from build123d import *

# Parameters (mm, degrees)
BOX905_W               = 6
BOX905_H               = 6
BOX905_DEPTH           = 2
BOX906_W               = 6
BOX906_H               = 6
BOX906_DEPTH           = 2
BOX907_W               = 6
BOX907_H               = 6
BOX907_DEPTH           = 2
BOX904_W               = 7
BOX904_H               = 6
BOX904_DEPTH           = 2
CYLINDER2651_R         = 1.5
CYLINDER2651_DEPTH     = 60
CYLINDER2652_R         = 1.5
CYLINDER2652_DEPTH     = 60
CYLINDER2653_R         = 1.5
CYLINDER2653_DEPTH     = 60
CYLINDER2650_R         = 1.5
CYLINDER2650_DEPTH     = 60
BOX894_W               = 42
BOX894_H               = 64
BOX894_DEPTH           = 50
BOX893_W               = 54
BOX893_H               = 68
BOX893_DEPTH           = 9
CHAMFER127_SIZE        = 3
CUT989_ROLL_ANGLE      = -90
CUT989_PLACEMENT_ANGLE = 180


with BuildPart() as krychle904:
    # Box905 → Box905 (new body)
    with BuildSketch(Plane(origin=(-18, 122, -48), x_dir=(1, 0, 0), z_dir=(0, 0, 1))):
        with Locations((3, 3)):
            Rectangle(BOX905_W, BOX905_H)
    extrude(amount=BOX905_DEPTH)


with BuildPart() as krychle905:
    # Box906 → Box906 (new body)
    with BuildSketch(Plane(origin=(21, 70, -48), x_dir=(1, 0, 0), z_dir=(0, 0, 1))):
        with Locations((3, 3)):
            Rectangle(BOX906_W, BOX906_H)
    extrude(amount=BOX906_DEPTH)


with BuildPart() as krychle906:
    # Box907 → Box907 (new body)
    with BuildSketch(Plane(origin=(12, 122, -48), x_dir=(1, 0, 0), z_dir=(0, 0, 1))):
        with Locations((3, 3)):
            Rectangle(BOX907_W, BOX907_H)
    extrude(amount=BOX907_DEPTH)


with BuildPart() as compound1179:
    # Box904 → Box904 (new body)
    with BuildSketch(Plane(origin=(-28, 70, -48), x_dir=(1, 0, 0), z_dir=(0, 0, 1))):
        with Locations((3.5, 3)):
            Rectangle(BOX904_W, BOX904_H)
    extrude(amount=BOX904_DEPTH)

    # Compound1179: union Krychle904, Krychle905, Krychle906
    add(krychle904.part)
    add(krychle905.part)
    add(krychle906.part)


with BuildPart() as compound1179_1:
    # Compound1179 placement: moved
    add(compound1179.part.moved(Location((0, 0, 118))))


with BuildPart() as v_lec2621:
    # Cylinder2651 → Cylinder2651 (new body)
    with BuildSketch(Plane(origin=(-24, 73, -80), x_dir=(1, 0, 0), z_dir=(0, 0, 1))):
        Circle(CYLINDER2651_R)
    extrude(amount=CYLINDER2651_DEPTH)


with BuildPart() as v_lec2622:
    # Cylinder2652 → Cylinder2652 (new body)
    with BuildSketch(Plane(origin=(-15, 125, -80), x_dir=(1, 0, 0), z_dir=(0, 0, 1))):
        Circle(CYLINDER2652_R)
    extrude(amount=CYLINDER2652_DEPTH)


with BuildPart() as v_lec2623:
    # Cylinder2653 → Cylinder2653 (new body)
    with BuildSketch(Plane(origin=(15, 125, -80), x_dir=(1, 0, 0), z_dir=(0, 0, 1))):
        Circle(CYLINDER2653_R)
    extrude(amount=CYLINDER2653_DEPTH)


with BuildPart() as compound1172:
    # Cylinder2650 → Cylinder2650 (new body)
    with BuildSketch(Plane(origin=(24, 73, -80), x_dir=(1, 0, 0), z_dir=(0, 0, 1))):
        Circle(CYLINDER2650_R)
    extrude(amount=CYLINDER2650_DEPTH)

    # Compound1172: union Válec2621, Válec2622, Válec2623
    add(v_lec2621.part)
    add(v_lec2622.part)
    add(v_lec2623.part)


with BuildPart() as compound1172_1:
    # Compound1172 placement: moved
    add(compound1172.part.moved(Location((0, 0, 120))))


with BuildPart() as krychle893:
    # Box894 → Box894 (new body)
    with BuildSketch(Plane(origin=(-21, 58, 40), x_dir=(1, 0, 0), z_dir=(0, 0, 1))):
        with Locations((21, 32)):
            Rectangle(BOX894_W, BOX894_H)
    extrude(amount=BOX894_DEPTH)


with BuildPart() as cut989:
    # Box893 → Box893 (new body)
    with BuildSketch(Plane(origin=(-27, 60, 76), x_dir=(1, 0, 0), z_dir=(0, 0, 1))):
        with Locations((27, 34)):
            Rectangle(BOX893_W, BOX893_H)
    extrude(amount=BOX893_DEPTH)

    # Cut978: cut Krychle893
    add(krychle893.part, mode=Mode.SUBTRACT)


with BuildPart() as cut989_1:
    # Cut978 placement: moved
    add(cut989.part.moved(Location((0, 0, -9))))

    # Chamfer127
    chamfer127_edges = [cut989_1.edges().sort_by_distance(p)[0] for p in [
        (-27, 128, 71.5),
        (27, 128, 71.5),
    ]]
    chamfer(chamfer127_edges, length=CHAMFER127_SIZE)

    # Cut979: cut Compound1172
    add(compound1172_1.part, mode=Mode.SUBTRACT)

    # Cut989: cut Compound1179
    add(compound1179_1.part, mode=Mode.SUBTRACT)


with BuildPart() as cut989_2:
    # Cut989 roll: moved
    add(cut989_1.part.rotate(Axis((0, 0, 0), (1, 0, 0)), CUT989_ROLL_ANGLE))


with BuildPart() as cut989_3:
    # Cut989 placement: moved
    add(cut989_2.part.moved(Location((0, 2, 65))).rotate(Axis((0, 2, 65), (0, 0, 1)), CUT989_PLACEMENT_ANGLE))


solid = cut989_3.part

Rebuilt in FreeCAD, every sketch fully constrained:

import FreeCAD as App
import Part
import Sketcher
from FreeCAD import Vector


def edges_at(feature, points):
    """Names of the edges that pass closest to the given points."""
    edges = feature.Shape.Edges
    near = lambda p: min(range(len(edges)), key=lambda i: edges[i].distToShape(Part.Vertex(*p))[0])
    return sorted({f"Edge{near(p) + 1}" for p in points})


def add_polygon(sketch, points):
    """Adds a closed chain of lines whose ends are joined by coincident constraints."""
    first, n = sketch.GeometryCount, len(points)
    for a, b in zip(points, points[1:] + points[:1]):
        sketch.addGeometry(Part.LineSegment(App.Vector(*a, 0), App.Vector(*b, 0)), False)
    for i in range(n):
        sketch.addConstraint(Sketcher.Constraint("Coincident", first + i, 2, first + (i + 1) % n, 1))

doc = App.newDocument("Part")
body = doc.addObject("PartDesign::Body", "Body")

# Sketch on XY plane
sketch1 = body.newObject("Sketcher::SketchObject", "Sketch")
sketch1.AttachmentSupport = (doc.getObject("XY_Plane"), [""])
sketch1.MapMode = "FlatFace"
sketch1.AttachmentOffset = App.Placement(Vector(0, 0, -48), App.Rotation())
add_polygon(sketch1, [(-18, 128), (-18, 122), (-12, 122), (-12, 128)])  # lines 0-3
sketch1.addConstraint([
    Sketcher.Constraint("Vertical", 0),
    Sketcher.Constraint("Horizontal", 1),
    Sketcher.Constraint("Vertical", 2),
    Sketcher.Constraint("Horizontal", 3),
    Sketcher.Constraint("Equal", 3, 0),
    Sketcher.Constraint("DistanceX", 1, 1, 1, 2, 6.0),
    Sketcher.Constraint("DistanceX", 0, 2, -1, 1, 18.0),
    Sketcher.Constraint("DistanceY", -1, 1, 0, 2, 122.0),
])
pad1 = body.newObject("PartDesign::Pad", "Pad")
pad1.Profile = sketch1
pad1.Length = 2
body2 = doc.addObject("PartDesign::Body", "Body001")

# Sketch on XY plane
sketch2 = body2.newObject("Sketcher::SketchObject", "Sketch001")
sketch2.AttachmentSupport = (doc.getObject("XY_Plane001"), [""])
sketch2.MapMode = "FlatFace"
sketch2.AttachmentOffset = App.Placement(Vector(0, 0, -48), App.Rotation())
add_polygon(sketch2, [(21, 76), (21, 70), (27, 70), (27, 76)])  # lines 0-3
sketch2.addConstraint([
    Sketcher.Constraint("Vertical", 0),
    Sketcher.Constraint("Horizontal", 1),
    Sketcher.Constraint("Vertical", 2),
    Sketcher.Constraint("Horizontal", 3),
    Sketcher.Constraint("Equal", 3, 0),
    Sketcher.Constraint("DistanceX", 1, 1, 1, 2, 6.0),
    Sketcher.Constraint("DistanceX", -1, 1, 0, 2, 21.0),
    Sketcher.Constraint("DistanceY", -1, 1, 0, 2, 70.0),
])
pad2 = body2.newObject("PartDesign::Pad", "Pad001")
pad2.Profile = sketch2
pad2.Length = 2
body3 = doc.addObject("PartDesign::Body", "Body002")

# Sketch on XY plane
sketch3 = body3.newObject("Sketcher::SketchObject", "Sketch002")
sketch3.AttachmentSupport = (doc.getObject("XY_Plane002"), [""])
sketch3.MapMode = "FlatFace"
sketch3.AttachmentOffset = App.Placement(Vector(0, 0, -48), App.Rotation())
add_polygon(sketch3, [(12, 128), (12, 122), (18, 122), (18, 128)])  # lines 0-3
sketch3.addConstraint([
    Sketcher.Constraint("Vertical", 0),
    Sketcher.Constraint("Horizontal", 1),
    Sketcher.Constraint("Vertical", 2),
    Sketcher.Constraint("Horizontal", 3),
    Sketcher.Constraint("Equal", 3, 0),
    Sketcher.Constraint("DistanceX", 1, 1, 1, 2, 6.0),
    Sketcher.Constraint("DistanceX", -1, 1, 0, 2, 12.0),
    Sketcher.Constraint("DistanceY", -1, 1, 0, 2, 122.0),
])
pad3 = body3.newObject("PartDesign::Pad", "Pad002")
pad3.Profile = sketch3
pad3.Length = 2
body4 = doc.addObject("PartDesign::Body", "Body003")
body4.AllowCompound = True

# Sketch on XY plane
sketch4 = body4.newObject("Sketcher::SketchObject", "Sketch003")
sketch4.AttachmentSupport = (doc.getObject("XY_Plane003"), [""])
sketch4.MapMode = "FlatFace"
sketch4.AttachmentOffset = App.Placement(Vector(0, 0, -48), App.Rotation())
add_polygon(sketch4, [(-28, 76), (-28, 70), (-21, 70), (-21, 76)])  # lines 0-3
sketch4.addConstraint([
    Sketcher.Constraint("Vertical", 0),
    Sketcher.Constraint("Horizontal", 1),
    Sketcher.Constraint("Vertical", 2),
    Sketcher.Constraint("Horizontal", 3),
    Sketcher.Constraint("DistanceX", 1, 1, 1, 2, 7.0),
    Sketcher.Constraint("DistanceY", 0, 2, 0, 1, 6.0),
    Sketcher.Constraint("DistanceX", 0, 2, -1, 1, 28.0),
    Sketcher.Constraint("DistanceY", -1, 1, 0, 2, 70.0),
])
pad4 = body4.newObject("PartDesign::Pad", "Pad003")
pad4.Profile = sketch4
pad4.Length = 2
doc.recompute()

boolean = body4.newObject("PartDesign::Boolean", "Boolean")
boolean.Type = "Fuse"
boolean.addObjects([body])
doc.recompute()

boolean2 = body4.newObject("PartDesign::Boolean", "Boolean001")
boolean2.Type = "Fuse"
boolean2.addObjects([body2])
doc.recompute()

boolean3 = body4.newObject("PartDesign::Boolean", "Boolean002")
boolean3.Type = "Fuse"
boolean3.addObjects([body3])
body5 = doc.addObject("PartDesign::Body", "Body004")
body5.AllowCompound = True
doc.recompute()

body4.Placement = App.Placement(Vector(0, 0, 118), App.Rotation(Vector(0, 0, 1), 0))
boolean4 = body5.newObject("PartDesign::Boolean", "Boolean003")
boolean4.Type = "Fuse"
boolean4.addObjects([body4])
body6 = doc.addObject("PartDesign::Body", "Body005")

# Sketch on XY plane
sketch5 = body6.newObject("Sketcher::SketchObject", "Sketch004")
sketch5.AttachmentSupport = (doc.getObject("XY_Plane005"), [""])
sketch5.MapMode = "FlatFace"
sketch5.AttachmentOffset = App.Placement(Vector(0, 0, -80), App.Rotation())
sketch5.addGeometry(Part.Circle(Vector(-24, 73, 0), Vector(0, 0, 1), 1.5), False)
sketch5.addConstraint([
    Sketcher.Constraint("Diameter", 0, 3.0),
    Sketcher.Constraint("DistanceX", 0, 3, -1, 1, 24.0),
    Sketcher.Constraint("DistanceY", -1, 1, 0, 3, 73.0),
])
pad5 = body6.newObject("PartDesign::Pad", "Pad004")
pad5.Profile = sketch5
pad5.Length = 60
body7 = doc.addObject("PartDesign::Body", "Body006")

# Sketch on XY plane
sketch6 = body7.newObject("Sketcher::SketchObject", "Sketch005")
sketch6.AttachmentSupport = (doc.getObject("XY_Plane006"), [""])
sketch6.MapMode = "FlatFace"
sketch6.AttachmentOffset = App.Placement(Vector(0, 0, -80), App.Rotation())
sketch6.addGeometry(Part.Circle(Vector(-15, 125, 0), Vector(0, 0, 1), 1.5), False)
sketch6.addConstraint([
    Sketcher.Constraint("Diameter", 0, 3.0),
    Sketcher.Constraint("DistanceX", 0, 3, -1, 1, 15.0),
    Sketcher.Constraint("DistanceY", -1, 1, 0, 3, 125.0),
])
pad6 = body7.newObject("PartDesign::Pad", "Pad005")
pad6.Profile = sketch6
pad6.Length = 60
body8 = doc.addObject("PartDesign::Body", "Body007")

# Sketch on XY plane
sketch7 = body8.newObject("Sketcher::SketchObject", "Sketch006")
sketch7.AttachmentSupport = (doc.getObject("XY_Plane007"), [""])
sketch7.MapMode = "FlatFace"
sketch7.AttachmentOffset = App.Placement(Vector(0, 0, -80), App.Rotation())
sketch7.addGeometry(Part.Circle(Vector(15, 125, 0), Vector(0, 0, 1), 1.5), False)
sketch7.addConstraint([
    Sketcher.Constraint("Diameter", 0, 3.0),
    Sketcher.Constraint("DistanceX", -1, 1, 0, 3, 15.0),
    Sketcher.Constraint("DistanceY", -1, 1, 0, 3, 125.0),
])
pad7 = body8.newObject("PartDesign::Pad", "Pad006")
pad7.Profile = sketch7
pad7.Length = 60
body9 = doc.addObject("PartDesign::Body", "Body008")
body9.AllowCompound = True

# Sketch on XY plane
sketch8 = body9.newObject("Sketcher::SketchObject", "Sketch007")
sketch8.AttachmentSupport = (doc.getObject("XY_Plane008"), [""])
sketch8.MapMode = "FlatFace"
sketch8.AttachmentOffset = App.Placement(Vector(0, 0, -80), App.Rotation())
sketch8.addGeometry(Part.Circle(Vector(24, 73, 0), Vector(0, 0, 1), 1.5), False)
sketch8.addConstraint([
    Sketcher.Constraint("Diameter", 0, 3.0),
    Sketcher.Constraint("DistanceX", -1, 1, 0, 3, 24.0),
    Sketcher.Constraint("DistanceY", -1, 1, 0, 3, 73.0),
])
pad8 = body9.newObject("PartDesign::Pad", "Pad007")
pad8.Profile = sketch8
pad8.Length = 60
doc.recompute()

boolean5 = body9.newObject("PartDesign::Boolean", "Boolean004")
boolean5.Type = "Fuse"
boolean5.addObjects([body6])
doc.recompute()

boolean6 = body9.newObject("PartDesign::Boolean", "Boolean005")
boolean6.Type = "Fuse"
boolean6.addObjects([body7])
doc.recompute()

boolean7 = body9.newObject("PartDesign::Boolean", "Boolean006")
boolean7.Type = "Fuse"
boolean7.addObjects([body8])
body10 = doc.addObject("PartDesign::Body", "Body009")
body10.AllowCompound = True
doc.recompute()

body9.Placement = App.Placement(Vector(0, 0, 120), App.Rotation(Vector(0, 0, 1), 0))
boolean8 = body10.newObject("PartDesign::Boolean", "Boolean007")
boolean8.Type = "Fuse"
boolean8.addObjects([body9])
body11 = doc.addObject("PartDesign::Body", "Body010")

# Sketch on XY plane
sketch9 = body11.newObject("Sketcher::SketchObject", "Sketch008")
sketch9.AttachmentSupport = (doc.getObject("XY_Plane010"), [""])
sketch9.MapMode = "FlatFace"
sketch9.AttachmentOffset = App.Placement(Vector(0, 0, 40), App.Rotation())
add_polygon(sketch9, [(-21, 122), (-21, 58), (21, 58), (21, 122)])  # lines 0-3
sketch9.addConstraint([
    Sketcher.Constraint("Vertical", 0),
    Sketcher.Constraint("Horizontal", 1),
    Sketcher.Constraint("Vertical", 2),
    Sketcher.Constraint("Horizontal", 3),
    Sketcher.Constraint("DistanceX", 1, 1, 1, 2, 42.0),
    Sketcher.Constraint("DistanceY", 0, 2, 0, 1, 64.0),
    Sketcher.Constraint("DistanceX", 0, 2, -1, 1, 21.0),
    Sketcher.Constraint("DistanceY", -1, 1, 0, 2, 58.0),
])
pad9 = body11.newObject("PartDesign::Pad", "Pad008")
pad9.Profile = sketch9
pad9.Length = 50
body12 = doc.addObject("PartDesign::Body", "Body011")

# Sketch on XY plane
sketch10 = body12.newObject("Sketcher::SketchObject", "Sketch009")
sketch10.AttachmentSupport = (doc.getObject("XY_Plane011"), [""])
sketch10.MapMode = "FlatFace"
sketch10.AttachmentOffset = App.Placement(Vector(0, 0, 76), App.Rotation())
add_polygon(sketch10, [(-27, 128), (-27, 60), (27, 60), (27, 128)])  # lines 0-3
sketch10.addConstraint([
    Sketcher.Constraint("Vertical", 0),
    Sketcher.Constraint("Horizontal", 1),
    Sketcher.Constraint("Vertical", 2),
    Sketcher.Constraint("Horizontal", 3),
    Sketcher.Constraint("DistanceX", 1, 1, 1, 2, 54.0),
    Sketcher.Constraint("DistanceY", 0, 2, 0, 1, 68.0),
    Sketcher.Constraint("DistanceX", 0, 2, -1, 1, 27.0),
    Sketcher.Constraint("DistanceY", -1, 1, 0, 2, 60.0),
])
pad10 = body12.newObject("PartDesign::Pad", "Pad009")
pad10.Profile = sketch10
pad10.Length = 9
doc.recompute()

boolean9 = body12.newObject("PartDesign::Boolean", "Boolean008")
boolean9.Type = "Cut"
boolean9.addObjects([body11])
body13 = doc.addObject("PartDesign::Body", "Body012")
doc.recompute()

body12.Placement = App.Placement(Vector(0, 0, -9), App.Rotation(Vector(0, 0, 1), 0))
boolean10 = body13.newObject("PartDesign::Boolean", "Boolean009")
boolean10.Type = "Fuse"
boolean10.addObjects([body12])
doc.recompute()

chamfer = body13.newObject("PartDesign::Chamfer", "Chamfer")
chamfer.Base = (boolean10, edges_at(boolean10, [(-27, 128, 71.5), (27, 128, 71.5)]))
chamfer.Size = 3
doc.recompute()

boolean11 = body13.newObject("PartDesign::Boolean", "Boolean010")
boolean11.Type = "Cut"
boolean11.addObjects([body10])
doc.recompute()

boolean12 = body13.newObject("PartDesign::Boolean", "Boolean011")
boolean12.Type = "Cut"
boolean12.addObjects([body5])
body14 = doc.addObject("PartDesign::Body", "Body013")
doc.recompute()

body13.Placement = App.Placement(Vector(0, 0, 0), App.Rotation(Vector(1, 0, 0), 270))
boolean13 = body14.newObject("PartDesign::Boolean", "Boolean012")
boolean13.Type = "Fuse"
boolean13.addObjects([body13])
body15 = doc.addObject("PartDesign::Body", "Body014")
doc.recompute()

body14.Placement = App.Placement(Vector(0, 2, 65), App.Rotation(Vector(0, 0, 1), 180))
boolean14 = body15.newObject("PartDesign::Boolean", "Boolean013")
boolean14.Type = "Fuse"
boolean14.addObjects([body14])

doc.recompute()
